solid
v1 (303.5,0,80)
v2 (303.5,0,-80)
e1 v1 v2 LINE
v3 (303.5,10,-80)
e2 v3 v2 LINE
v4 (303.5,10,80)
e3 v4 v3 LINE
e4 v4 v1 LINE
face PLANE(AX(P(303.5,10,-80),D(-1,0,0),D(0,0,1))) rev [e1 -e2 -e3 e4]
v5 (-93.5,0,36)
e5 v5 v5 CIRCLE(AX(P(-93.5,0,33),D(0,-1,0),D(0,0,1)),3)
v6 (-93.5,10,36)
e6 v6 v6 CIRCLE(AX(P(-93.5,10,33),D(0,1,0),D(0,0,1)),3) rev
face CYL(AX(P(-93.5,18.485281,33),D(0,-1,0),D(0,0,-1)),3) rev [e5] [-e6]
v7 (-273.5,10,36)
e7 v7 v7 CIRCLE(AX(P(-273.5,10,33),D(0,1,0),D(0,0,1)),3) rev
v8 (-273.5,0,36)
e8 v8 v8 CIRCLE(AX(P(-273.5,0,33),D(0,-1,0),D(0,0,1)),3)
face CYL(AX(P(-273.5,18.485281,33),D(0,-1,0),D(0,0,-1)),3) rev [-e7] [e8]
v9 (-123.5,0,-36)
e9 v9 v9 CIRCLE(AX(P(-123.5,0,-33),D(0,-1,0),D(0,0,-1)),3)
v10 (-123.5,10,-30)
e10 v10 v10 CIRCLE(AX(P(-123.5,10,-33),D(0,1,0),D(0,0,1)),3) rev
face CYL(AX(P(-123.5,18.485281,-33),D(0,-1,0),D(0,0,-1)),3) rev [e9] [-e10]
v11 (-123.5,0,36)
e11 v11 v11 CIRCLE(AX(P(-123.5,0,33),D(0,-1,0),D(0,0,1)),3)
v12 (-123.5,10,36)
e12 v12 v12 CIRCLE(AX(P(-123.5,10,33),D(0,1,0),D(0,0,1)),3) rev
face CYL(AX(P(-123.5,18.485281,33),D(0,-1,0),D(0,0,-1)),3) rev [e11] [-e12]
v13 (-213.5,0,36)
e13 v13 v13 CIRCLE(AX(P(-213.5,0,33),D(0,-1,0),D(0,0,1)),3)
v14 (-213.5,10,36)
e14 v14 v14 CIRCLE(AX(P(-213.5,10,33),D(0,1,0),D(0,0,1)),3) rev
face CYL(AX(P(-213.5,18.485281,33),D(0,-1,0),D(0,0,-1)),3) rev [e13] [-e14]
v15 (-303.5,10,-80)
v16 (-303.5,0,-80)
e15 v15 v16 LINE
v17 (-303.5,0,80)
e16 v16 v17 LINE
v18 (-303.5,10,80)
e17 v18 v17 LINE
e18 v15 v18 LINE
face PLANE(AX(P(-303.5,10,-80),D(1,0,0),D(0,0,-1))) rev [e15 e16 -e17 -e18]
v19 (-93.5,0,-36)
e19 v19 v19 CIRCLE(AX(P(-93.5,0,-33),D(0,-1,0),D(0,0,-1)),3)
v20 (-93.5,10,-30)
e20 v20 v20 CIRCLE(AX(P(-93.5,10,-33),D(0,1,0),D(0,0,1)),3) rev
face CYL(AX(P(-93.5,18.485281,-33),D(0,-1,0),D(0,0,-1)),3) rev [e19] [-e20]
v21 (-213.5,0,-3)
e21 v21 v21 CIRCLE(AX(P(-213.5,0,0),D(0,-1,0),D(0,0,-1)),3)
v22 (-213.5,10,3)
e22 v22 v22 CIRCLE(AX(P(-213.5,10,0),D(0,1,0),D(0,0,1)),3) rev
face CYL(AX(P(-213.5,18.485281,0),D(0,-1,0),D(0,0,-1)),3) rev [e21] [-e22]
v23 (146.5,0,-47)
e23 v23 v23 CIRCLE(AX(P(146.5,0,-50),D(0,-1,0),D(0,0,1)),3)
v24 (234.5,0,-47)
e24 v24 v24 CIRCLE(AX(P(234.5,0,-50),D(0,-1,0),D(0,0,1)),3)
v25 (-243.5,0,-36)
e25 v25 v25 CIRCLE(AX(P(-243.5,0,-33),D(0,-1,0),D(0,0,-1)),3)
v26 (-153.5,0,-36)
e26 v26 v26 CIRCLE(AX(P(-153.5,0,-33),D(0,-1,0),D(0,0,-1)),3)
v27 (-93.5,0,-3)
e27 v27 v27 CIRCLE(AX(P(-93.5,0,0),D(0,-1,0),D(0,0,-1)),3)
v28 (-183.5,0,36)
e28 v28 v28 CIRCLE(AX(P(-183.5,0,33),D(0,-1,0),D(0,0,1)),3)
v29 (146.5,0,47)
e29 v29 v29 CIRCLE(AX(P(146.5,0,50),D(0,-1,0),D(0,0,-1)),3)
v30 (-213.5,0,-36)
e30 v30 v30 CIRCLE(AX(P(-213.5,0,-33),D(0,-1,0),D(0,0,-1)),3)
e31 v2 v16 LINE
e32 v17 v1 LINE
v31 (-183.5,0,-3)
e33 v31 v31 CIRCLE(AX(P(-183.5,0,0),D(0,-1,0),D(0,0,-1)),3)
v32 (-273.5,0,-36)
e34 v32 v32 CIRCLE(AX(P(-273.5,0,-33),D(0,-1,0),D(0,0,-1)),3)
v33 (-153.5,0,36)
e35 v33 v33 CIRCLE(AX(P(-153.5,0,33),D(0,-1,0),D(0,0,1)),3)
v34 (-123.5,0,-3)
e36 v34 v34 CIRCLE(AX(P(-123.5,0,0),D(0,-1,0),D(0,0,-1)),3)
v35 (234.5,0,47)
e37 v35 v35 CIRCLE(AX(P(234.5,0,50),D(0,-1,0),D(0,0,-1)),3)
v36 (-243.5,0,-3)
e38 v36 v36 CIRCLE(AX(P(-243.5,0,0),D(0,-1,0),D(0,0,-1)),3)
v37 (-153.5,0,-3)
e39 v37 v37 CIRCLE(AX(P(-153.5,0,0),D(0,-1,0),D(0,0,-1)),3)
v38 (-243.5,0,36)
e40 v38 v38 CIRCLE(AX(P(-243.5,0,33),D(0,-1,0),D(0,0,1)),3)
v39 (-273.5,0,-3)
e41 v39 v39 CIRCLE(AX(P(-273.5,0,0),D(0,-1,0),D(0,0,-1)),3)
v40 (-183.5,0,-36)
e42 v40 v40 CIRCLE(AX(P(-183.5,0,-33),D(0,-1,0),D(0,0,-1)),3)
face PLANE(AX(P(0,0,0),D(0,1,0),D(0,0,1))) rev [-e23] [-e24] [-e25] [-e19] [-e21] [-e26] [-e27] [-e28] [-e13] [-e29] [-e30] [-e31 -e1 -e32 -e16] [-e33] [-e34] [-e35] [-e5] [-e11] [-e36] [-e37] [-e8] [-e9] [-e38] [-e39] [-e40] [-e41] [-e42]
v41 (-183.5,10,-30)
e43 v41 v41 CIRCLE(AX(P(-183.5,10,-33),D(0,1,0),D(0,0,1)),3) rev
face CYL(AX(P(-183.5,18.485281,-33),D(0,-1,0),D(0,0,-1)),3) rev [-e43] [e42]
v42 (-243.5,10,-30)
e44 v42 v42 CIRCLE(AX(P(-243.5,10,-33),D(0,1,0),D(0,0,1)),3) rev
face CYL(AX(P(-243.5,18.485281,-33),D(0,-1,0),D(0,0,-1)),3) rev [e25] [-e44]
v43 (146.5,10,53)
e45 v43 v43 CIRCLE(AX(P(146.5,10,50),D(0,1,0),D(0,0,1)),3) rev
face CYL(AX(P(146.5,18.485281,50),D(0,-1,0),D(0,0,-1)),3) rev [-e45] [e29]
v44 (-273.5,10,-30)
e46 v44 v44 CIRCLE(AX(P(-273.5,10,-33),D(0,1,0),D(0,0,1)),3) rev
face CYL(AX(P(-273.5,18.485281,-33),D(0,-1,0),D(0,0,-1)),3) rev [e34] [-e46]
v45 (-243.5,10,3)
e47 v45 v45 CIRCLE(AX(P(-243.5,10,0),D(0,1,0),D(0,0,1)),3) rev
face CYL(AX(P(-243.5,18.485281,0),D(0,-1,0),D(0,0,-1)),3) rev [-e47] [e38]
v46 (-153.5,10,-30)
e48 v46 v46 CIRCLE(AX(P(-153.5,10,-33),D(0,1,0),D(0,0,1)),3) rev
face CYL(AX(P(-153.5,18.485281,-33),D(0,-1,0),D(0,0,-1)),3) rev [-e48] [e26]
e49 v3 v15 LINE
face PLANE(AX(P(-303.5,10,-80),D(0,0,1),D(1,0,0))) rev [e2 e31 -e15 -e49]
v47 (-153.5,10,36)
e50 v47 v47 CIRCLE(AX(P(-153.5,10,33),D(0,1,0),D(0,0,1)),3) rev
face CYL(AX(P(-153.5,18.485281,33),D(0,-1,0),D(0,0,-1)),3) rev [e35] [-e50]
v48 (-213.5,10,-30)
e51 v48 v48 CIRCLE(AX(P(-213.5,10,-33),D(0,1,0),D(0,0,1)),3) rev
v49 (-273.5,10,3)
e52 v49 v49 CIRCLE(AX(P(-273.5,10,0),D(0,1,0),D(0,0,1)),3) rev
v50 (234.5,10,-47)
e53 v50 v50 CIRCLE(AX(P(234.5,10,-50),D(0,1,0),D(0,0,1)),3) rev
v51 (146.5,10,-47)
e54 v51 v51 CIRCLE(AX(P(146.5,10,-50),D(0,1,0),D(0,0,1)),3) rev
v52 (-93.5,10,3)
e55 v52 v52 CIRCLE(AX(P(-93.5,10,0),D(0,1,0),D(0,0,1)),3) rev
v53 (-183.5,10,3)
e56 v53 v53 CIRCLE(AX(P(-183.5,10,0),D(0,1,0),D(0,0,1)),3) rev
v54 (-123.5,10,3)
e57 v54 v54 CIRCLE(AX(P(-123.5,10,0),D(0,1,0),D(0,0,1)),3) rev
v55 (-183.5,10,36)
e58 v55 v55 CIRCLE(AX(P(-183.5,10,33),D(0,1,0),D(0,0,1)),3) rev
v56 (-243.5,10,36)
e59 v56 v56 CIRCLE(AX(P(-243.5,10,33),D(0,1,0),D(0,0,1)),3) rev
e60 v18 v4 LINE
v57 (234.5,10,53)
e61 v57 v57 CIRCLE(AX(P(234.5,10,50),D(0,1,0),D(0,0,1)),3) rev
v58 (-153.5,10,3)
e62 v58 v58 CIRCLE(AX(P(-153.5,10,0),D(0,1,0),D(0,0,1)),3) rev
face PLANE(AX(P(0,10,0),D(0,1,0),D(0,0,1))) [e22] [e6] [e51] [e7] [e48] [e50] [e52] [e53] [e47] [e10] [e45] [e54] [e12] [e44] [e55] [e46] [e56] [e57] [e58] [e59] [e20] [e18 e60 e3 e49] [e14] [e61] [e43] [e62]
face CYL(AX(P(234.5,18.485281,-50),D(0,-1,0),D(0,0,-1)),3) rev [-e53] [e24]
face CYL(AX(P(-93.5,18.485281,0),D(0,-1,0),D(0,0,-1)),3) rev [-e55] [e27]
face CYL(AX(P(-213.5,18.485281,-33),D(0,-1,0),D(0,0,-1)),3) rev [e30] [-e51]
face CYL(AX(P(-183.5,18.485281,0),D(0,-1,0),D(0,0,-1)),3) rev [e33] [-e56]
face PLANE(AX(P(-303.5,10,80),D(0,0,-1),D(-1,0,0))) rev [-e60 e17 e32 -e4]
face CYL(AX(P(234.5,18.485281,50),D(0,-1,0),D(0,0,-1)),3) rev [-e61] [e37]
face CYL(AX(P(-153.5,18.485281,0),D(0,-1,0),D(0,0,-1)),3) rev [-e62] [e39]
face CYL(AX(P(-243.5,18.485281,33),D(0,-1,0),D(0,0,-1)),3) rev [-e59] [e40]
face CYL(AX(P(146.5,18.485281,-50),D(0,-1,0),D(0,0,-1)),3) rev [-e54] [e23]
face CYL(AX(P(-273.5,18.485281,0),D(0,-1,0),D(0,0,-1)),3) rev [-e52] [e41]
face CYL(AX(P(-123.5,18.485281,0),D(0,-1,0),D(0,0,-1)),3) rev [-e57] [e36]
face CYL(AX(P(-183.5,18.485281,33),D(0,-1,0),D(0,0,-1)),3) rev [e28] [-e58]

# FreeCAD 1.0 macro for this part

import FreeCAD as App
import Part
import Sketcher
from FreeCAD import Vector
Q = App.Units.Quantity


def add_polygon(sketch, points):
    """Adds a closed chain of lines whose ends are joined by coincident constraints."""
    first, n = sketch.GeometryCount, len(points)
    for a, b in zip(points, points[1:] + points[:1]):
        sketch.addGeometry(Part.LineSegment(App.Vector(*a, 0), App.Vector(*b, 0)), False)
    for i in range(n):
        sketch.addConstraint(Sketcher.Constraint("Coincident", first + i, 2, first + (i + 1) % n, 1))

doc = App.newDocument("Part")
body = doc.addObject("PartDesign::Body", "Body")

sketch1 = body.newObject("Sketcher::SketchObject", "Sketch")
sketch1.AttachmentSupport = (doc.getObject("XZ_Plane"), [""])
sketch1.MapMode = "FlatFace"
add_polygon(sketch1, [(-304, -80), (-304, 80), (304, 80), (304, -80)])
sketch1.addConstraint([
    Sketcher.Constraint("Vertical", 0),
    Sketcher.Constraint("Horizontal", 1),
    Sketcher.Constraint("Vertical", 2),
    Sketcher.Constraint("Horizontal", 3),
    Sketcher.Constraint("Symmetric", 0, 2, 2, 2, -1, 1),
    Sketcher.Constraint("DistanceX", 1, 1, 1, 2, Q("607 mm")),
    Sketcher.Constraint("DistanceY", 0, 1, 0, 2, Q("160 mm")),
])
pad1 = body.newObject("PartDesign::Pad", "Pad")
pad1.Profile = sketch1
pad1.Length = 10
pad1.Reversed = True

sketch2 = body.newObject("Sketcher::SketchObject", "Sketch001")
sketch2.AttachmentSupport = (doc.getObject("XZ_Plane"), [""])
sketch2.MapMode = "FlatFace"
sketch2.addGeometry([
    Part.Circle(Vector(-93.5, -33, 0), Vector(0, 0, 1), 3),
    Part.Circle(Vector(-123.5, -33, 0), Vector(0, 0, 1), 3),
    Part.Circle(Vector(-153.5, -33, 0), Vector(0, 0, 1), 3),
    Part.Circle(Vector(-183.5, -33, 0), Vector(0, 0, 1), 3),
    Part.Circle(Vector(-183.5, 0, 0), Vector(0, 0, 1), 3),
    Part.Circle(Vector(-183.5, 33, 0), Vector(0, 0, 1), 3),
    Part.Circle(Vector(-213.5, 33, 0), Vector(0, 0, 1), 3),
    Part.Circle(Vector(-153.5, 0, 0), Vector(0, 0, 1), 3),
    Part.Circle(Vector(-213.5, -33, 0), Vector(0, 0, 1), 3),
    Part.Circle(Vector(-153.5, 33, 0), Vector(0, 0, 1), 3),
    Part.Circle(Vector(-123.5, 0, 0), Vector(0, 0, 1), 3),
    Part.Circle(Vector(-123.5, 33, 0), Vector(0, 0, 1), 3),
    Part.Circle(Vector(-93.5, 0, 0), Vector(0, 0, 1), 3),
    Part.Circle(Vector(-93.5, 33, 0), Vector(0, 0, 1), 3),
    Part.Circle(Vector(234.5, 50, 0), Vector(0, 0, 1), 3),
    Part.Circle(Vector(146.5, 50, 0), Vector(0, 0, 1), 3),
    Part.Circle(Vector(146.5, -50, 0), Vector(0, 0, 1), 3),
    Part.Circle(Vector(234.5, -50, 0), Vector(0, 0, 1), 3),
    Part.Circle(Vector(-243.5, 33, 0), Vector(0, 0, 1), 3),
    Part.Circle(Vector(-243.5, 0, 0), Vector(0, 0, 1), 3),
    Part.Circle(Vector(-213.5, 0, 0), Vector(0, 0, 1), 3),
    Part.Circle(Vector(-243.5, -33, 0), Vector(0, 0, 1), 3),
    Part.Circle(Vector(-273.5, 33, 0), Vector(0, 0, 1), 3),
    Part.Circle(Vector(-273.5, 0, 0), Vector(0, 0, 1), 3),
    Part.Circle(Vector(-273.5, -33, 0), Vector(0, 0, 1), 3),
], False)
sketch2.addConstraint([
    Sketcher.Constraint("Equal", 0, 1),
    Sketcher.Constraint("Equal", 1, 2),
    Sketcher.Constraint("Equal", 2, 3),
    Sketcher.Constraint("Equal", 3, 4),
    Sketcher.Constraint("Equal", 4, 5),
    Sketcher.Constraint("Equal", 5, 6),
    Sketcher.Constraint("Equal", 6, 7),
    Sketcher.Constraint("Equal", 7, 8),
    Sketcher.Constraint("Equal", 8, 9),
    Sketcher.Constraint("Equal", 9, 10),
    Sketcher.Constraint("Equal", 10, 11),
    Sketcher.Constraint("Equal", 11, 12),
    Sketcher.Constraint("Equal", 12, 13),
    Sketcher.Constraint("Equal", 13, 14),
    Sketcher.Constraint("Equal", 14, 15),
    Sketcher.Constraint("Equal", 15, 16),
    Sketcher.Constraint("Equal", 16, 17),
    Sketcher.Constraint("Equal", 17, 18),
    Sketcher.Constraint("Equal", 18, 19),
    Sketcher.Constraint("Equal", 19, 20),
    Sketcher.Constraint("Equal", 20, 21),
    Sketcher.Constraint("Equal", 21, 22),
    Sketcher.Constraint("Equal", 22, 23),
    Sketcher.Constraint("Equal", 23, 24),
    Sketcher.Constraint("Symmetric", 3, 3, 5, 3, -1),
    Sketcher.Constraint("Symmetric", 6, 3, 8, 3, -1),
    Sketcher.Constraint("Symmetric", 2, 3, 9, 3, -1),
    Sketcher.Constraint("Symmetric", 1, 3, 11, 3, -1),
    Sketcher.Constraint("Symmetric", 0, 3, 13, 3, -1),
    Sketcher.Constraint("Symmetric", 15, 3, 16, 3, -1),
    Sketcher.Constraint("Symmetric", 14, 3, 17, 3, -1),
    Sketcher.Constraint("Symmetric", 18, 3, 21, 3, -1),
    Sketcher.Constraint("Symmetric", 22, 3, 24, 3, -1),
    Sketcher.Constraint("PointOnObject", 4, 3, -1),
    Sketcher.Constraint("PointOnObject", 7, 3, -1),
    Sketcher.Constraint("PointOnObject", 10, 3, -1),
    Sketcher.Constraint("PointOnObject", 12, 3, -1),
    Sketcher.Constraint("PointOnObject", 19, 3, -1),
    Sketcher.Constraint("PointOnObject", 20, 3, -1),
    Sketcher.Constraint("PointOnObject", 23, 3, -1),
    Sketcher.Constraint("Horizontal", 0, 3, 1, 3),
    Sketcher.Constraint("Horizontal", 1, 3, 2, 3),
    Sketcher.Constraint("Horizontal", 2, 3, 3, 3),
    Sketcher.Constraint("Horizontal", 5, 3, 6, 3),
    Sketcher.Constraint("Horizontal", 14, 3, 15, 3),
    Sketcher.Constraint("Horizontal", 13, 3, 18, 3),
    Sketcher.Constraint("Horizontal", 18, 3, 22, 3),
    Sketcher.Constraint("Vertical", 3, 3, 4, 3),
    Sketcher.Constraint("Vertical", 2, 3, 7, 3),
    Sketcher.Constraint("Vertical", 1, 3, 10, 3),
    Sketcher.Constraint("Vertical", 0, 3, 12, 3),
    Sketcher.Constraint("Vertical", 18, 3, 19, 3),
    Sketcher.Constraint("Vertical", 8, 3, 20, 3),
    Sketcher.Constraint("Vertical", 22, 3, 23, 3),
    Sketcher.Constraint("Diameter", 0, Q("6 mm")),
    Sketcher.Constraint("DistanceY", 0, 3, -1, 1, Q("33 mm")),
    Sketcher.Constraint("DistanceY", -1, 1, 14, 3, Q("50 mm")),
    Sketcher.Constraint("DistanceX", 1, 3, 0, 3, Q("30 mm")),
    Sketcher.Constraint("DistanceX", 2, 3, 1, 3, Q("30 mm")),
    Sketcher.Constraint("DistanceX", 3, 3, 2, 3, Q("30 mm")),
    Sketcher.Constraint("DistanceX", 6, 3, 5, 3, Q("30 mm")),
    Sketcher.Constraint("DistanceX", 13, 3, 14, 3, Q("328 mm")),
    Sketcher.Constraint("DistanceX", 15, 3, 14, 3, Q("88 mm")),
    Sketcher.Constraint("DistanceX", 18, 3, 6, 3, Q("30 mm")),
    Sketcher.Constraint("DistanceX", 22, 3, 18, 3, Q("30 mm")),
    Sketcher.Constraint("DistanceX", 0, 3, -1, 1, Q("93.5 mm")),
])
pocket1 = body.newObject("PartDesign::Pocket", "Pocket")
pocket1.Profile = sketch2
pocket1.Length = 10

doc.recompute()
